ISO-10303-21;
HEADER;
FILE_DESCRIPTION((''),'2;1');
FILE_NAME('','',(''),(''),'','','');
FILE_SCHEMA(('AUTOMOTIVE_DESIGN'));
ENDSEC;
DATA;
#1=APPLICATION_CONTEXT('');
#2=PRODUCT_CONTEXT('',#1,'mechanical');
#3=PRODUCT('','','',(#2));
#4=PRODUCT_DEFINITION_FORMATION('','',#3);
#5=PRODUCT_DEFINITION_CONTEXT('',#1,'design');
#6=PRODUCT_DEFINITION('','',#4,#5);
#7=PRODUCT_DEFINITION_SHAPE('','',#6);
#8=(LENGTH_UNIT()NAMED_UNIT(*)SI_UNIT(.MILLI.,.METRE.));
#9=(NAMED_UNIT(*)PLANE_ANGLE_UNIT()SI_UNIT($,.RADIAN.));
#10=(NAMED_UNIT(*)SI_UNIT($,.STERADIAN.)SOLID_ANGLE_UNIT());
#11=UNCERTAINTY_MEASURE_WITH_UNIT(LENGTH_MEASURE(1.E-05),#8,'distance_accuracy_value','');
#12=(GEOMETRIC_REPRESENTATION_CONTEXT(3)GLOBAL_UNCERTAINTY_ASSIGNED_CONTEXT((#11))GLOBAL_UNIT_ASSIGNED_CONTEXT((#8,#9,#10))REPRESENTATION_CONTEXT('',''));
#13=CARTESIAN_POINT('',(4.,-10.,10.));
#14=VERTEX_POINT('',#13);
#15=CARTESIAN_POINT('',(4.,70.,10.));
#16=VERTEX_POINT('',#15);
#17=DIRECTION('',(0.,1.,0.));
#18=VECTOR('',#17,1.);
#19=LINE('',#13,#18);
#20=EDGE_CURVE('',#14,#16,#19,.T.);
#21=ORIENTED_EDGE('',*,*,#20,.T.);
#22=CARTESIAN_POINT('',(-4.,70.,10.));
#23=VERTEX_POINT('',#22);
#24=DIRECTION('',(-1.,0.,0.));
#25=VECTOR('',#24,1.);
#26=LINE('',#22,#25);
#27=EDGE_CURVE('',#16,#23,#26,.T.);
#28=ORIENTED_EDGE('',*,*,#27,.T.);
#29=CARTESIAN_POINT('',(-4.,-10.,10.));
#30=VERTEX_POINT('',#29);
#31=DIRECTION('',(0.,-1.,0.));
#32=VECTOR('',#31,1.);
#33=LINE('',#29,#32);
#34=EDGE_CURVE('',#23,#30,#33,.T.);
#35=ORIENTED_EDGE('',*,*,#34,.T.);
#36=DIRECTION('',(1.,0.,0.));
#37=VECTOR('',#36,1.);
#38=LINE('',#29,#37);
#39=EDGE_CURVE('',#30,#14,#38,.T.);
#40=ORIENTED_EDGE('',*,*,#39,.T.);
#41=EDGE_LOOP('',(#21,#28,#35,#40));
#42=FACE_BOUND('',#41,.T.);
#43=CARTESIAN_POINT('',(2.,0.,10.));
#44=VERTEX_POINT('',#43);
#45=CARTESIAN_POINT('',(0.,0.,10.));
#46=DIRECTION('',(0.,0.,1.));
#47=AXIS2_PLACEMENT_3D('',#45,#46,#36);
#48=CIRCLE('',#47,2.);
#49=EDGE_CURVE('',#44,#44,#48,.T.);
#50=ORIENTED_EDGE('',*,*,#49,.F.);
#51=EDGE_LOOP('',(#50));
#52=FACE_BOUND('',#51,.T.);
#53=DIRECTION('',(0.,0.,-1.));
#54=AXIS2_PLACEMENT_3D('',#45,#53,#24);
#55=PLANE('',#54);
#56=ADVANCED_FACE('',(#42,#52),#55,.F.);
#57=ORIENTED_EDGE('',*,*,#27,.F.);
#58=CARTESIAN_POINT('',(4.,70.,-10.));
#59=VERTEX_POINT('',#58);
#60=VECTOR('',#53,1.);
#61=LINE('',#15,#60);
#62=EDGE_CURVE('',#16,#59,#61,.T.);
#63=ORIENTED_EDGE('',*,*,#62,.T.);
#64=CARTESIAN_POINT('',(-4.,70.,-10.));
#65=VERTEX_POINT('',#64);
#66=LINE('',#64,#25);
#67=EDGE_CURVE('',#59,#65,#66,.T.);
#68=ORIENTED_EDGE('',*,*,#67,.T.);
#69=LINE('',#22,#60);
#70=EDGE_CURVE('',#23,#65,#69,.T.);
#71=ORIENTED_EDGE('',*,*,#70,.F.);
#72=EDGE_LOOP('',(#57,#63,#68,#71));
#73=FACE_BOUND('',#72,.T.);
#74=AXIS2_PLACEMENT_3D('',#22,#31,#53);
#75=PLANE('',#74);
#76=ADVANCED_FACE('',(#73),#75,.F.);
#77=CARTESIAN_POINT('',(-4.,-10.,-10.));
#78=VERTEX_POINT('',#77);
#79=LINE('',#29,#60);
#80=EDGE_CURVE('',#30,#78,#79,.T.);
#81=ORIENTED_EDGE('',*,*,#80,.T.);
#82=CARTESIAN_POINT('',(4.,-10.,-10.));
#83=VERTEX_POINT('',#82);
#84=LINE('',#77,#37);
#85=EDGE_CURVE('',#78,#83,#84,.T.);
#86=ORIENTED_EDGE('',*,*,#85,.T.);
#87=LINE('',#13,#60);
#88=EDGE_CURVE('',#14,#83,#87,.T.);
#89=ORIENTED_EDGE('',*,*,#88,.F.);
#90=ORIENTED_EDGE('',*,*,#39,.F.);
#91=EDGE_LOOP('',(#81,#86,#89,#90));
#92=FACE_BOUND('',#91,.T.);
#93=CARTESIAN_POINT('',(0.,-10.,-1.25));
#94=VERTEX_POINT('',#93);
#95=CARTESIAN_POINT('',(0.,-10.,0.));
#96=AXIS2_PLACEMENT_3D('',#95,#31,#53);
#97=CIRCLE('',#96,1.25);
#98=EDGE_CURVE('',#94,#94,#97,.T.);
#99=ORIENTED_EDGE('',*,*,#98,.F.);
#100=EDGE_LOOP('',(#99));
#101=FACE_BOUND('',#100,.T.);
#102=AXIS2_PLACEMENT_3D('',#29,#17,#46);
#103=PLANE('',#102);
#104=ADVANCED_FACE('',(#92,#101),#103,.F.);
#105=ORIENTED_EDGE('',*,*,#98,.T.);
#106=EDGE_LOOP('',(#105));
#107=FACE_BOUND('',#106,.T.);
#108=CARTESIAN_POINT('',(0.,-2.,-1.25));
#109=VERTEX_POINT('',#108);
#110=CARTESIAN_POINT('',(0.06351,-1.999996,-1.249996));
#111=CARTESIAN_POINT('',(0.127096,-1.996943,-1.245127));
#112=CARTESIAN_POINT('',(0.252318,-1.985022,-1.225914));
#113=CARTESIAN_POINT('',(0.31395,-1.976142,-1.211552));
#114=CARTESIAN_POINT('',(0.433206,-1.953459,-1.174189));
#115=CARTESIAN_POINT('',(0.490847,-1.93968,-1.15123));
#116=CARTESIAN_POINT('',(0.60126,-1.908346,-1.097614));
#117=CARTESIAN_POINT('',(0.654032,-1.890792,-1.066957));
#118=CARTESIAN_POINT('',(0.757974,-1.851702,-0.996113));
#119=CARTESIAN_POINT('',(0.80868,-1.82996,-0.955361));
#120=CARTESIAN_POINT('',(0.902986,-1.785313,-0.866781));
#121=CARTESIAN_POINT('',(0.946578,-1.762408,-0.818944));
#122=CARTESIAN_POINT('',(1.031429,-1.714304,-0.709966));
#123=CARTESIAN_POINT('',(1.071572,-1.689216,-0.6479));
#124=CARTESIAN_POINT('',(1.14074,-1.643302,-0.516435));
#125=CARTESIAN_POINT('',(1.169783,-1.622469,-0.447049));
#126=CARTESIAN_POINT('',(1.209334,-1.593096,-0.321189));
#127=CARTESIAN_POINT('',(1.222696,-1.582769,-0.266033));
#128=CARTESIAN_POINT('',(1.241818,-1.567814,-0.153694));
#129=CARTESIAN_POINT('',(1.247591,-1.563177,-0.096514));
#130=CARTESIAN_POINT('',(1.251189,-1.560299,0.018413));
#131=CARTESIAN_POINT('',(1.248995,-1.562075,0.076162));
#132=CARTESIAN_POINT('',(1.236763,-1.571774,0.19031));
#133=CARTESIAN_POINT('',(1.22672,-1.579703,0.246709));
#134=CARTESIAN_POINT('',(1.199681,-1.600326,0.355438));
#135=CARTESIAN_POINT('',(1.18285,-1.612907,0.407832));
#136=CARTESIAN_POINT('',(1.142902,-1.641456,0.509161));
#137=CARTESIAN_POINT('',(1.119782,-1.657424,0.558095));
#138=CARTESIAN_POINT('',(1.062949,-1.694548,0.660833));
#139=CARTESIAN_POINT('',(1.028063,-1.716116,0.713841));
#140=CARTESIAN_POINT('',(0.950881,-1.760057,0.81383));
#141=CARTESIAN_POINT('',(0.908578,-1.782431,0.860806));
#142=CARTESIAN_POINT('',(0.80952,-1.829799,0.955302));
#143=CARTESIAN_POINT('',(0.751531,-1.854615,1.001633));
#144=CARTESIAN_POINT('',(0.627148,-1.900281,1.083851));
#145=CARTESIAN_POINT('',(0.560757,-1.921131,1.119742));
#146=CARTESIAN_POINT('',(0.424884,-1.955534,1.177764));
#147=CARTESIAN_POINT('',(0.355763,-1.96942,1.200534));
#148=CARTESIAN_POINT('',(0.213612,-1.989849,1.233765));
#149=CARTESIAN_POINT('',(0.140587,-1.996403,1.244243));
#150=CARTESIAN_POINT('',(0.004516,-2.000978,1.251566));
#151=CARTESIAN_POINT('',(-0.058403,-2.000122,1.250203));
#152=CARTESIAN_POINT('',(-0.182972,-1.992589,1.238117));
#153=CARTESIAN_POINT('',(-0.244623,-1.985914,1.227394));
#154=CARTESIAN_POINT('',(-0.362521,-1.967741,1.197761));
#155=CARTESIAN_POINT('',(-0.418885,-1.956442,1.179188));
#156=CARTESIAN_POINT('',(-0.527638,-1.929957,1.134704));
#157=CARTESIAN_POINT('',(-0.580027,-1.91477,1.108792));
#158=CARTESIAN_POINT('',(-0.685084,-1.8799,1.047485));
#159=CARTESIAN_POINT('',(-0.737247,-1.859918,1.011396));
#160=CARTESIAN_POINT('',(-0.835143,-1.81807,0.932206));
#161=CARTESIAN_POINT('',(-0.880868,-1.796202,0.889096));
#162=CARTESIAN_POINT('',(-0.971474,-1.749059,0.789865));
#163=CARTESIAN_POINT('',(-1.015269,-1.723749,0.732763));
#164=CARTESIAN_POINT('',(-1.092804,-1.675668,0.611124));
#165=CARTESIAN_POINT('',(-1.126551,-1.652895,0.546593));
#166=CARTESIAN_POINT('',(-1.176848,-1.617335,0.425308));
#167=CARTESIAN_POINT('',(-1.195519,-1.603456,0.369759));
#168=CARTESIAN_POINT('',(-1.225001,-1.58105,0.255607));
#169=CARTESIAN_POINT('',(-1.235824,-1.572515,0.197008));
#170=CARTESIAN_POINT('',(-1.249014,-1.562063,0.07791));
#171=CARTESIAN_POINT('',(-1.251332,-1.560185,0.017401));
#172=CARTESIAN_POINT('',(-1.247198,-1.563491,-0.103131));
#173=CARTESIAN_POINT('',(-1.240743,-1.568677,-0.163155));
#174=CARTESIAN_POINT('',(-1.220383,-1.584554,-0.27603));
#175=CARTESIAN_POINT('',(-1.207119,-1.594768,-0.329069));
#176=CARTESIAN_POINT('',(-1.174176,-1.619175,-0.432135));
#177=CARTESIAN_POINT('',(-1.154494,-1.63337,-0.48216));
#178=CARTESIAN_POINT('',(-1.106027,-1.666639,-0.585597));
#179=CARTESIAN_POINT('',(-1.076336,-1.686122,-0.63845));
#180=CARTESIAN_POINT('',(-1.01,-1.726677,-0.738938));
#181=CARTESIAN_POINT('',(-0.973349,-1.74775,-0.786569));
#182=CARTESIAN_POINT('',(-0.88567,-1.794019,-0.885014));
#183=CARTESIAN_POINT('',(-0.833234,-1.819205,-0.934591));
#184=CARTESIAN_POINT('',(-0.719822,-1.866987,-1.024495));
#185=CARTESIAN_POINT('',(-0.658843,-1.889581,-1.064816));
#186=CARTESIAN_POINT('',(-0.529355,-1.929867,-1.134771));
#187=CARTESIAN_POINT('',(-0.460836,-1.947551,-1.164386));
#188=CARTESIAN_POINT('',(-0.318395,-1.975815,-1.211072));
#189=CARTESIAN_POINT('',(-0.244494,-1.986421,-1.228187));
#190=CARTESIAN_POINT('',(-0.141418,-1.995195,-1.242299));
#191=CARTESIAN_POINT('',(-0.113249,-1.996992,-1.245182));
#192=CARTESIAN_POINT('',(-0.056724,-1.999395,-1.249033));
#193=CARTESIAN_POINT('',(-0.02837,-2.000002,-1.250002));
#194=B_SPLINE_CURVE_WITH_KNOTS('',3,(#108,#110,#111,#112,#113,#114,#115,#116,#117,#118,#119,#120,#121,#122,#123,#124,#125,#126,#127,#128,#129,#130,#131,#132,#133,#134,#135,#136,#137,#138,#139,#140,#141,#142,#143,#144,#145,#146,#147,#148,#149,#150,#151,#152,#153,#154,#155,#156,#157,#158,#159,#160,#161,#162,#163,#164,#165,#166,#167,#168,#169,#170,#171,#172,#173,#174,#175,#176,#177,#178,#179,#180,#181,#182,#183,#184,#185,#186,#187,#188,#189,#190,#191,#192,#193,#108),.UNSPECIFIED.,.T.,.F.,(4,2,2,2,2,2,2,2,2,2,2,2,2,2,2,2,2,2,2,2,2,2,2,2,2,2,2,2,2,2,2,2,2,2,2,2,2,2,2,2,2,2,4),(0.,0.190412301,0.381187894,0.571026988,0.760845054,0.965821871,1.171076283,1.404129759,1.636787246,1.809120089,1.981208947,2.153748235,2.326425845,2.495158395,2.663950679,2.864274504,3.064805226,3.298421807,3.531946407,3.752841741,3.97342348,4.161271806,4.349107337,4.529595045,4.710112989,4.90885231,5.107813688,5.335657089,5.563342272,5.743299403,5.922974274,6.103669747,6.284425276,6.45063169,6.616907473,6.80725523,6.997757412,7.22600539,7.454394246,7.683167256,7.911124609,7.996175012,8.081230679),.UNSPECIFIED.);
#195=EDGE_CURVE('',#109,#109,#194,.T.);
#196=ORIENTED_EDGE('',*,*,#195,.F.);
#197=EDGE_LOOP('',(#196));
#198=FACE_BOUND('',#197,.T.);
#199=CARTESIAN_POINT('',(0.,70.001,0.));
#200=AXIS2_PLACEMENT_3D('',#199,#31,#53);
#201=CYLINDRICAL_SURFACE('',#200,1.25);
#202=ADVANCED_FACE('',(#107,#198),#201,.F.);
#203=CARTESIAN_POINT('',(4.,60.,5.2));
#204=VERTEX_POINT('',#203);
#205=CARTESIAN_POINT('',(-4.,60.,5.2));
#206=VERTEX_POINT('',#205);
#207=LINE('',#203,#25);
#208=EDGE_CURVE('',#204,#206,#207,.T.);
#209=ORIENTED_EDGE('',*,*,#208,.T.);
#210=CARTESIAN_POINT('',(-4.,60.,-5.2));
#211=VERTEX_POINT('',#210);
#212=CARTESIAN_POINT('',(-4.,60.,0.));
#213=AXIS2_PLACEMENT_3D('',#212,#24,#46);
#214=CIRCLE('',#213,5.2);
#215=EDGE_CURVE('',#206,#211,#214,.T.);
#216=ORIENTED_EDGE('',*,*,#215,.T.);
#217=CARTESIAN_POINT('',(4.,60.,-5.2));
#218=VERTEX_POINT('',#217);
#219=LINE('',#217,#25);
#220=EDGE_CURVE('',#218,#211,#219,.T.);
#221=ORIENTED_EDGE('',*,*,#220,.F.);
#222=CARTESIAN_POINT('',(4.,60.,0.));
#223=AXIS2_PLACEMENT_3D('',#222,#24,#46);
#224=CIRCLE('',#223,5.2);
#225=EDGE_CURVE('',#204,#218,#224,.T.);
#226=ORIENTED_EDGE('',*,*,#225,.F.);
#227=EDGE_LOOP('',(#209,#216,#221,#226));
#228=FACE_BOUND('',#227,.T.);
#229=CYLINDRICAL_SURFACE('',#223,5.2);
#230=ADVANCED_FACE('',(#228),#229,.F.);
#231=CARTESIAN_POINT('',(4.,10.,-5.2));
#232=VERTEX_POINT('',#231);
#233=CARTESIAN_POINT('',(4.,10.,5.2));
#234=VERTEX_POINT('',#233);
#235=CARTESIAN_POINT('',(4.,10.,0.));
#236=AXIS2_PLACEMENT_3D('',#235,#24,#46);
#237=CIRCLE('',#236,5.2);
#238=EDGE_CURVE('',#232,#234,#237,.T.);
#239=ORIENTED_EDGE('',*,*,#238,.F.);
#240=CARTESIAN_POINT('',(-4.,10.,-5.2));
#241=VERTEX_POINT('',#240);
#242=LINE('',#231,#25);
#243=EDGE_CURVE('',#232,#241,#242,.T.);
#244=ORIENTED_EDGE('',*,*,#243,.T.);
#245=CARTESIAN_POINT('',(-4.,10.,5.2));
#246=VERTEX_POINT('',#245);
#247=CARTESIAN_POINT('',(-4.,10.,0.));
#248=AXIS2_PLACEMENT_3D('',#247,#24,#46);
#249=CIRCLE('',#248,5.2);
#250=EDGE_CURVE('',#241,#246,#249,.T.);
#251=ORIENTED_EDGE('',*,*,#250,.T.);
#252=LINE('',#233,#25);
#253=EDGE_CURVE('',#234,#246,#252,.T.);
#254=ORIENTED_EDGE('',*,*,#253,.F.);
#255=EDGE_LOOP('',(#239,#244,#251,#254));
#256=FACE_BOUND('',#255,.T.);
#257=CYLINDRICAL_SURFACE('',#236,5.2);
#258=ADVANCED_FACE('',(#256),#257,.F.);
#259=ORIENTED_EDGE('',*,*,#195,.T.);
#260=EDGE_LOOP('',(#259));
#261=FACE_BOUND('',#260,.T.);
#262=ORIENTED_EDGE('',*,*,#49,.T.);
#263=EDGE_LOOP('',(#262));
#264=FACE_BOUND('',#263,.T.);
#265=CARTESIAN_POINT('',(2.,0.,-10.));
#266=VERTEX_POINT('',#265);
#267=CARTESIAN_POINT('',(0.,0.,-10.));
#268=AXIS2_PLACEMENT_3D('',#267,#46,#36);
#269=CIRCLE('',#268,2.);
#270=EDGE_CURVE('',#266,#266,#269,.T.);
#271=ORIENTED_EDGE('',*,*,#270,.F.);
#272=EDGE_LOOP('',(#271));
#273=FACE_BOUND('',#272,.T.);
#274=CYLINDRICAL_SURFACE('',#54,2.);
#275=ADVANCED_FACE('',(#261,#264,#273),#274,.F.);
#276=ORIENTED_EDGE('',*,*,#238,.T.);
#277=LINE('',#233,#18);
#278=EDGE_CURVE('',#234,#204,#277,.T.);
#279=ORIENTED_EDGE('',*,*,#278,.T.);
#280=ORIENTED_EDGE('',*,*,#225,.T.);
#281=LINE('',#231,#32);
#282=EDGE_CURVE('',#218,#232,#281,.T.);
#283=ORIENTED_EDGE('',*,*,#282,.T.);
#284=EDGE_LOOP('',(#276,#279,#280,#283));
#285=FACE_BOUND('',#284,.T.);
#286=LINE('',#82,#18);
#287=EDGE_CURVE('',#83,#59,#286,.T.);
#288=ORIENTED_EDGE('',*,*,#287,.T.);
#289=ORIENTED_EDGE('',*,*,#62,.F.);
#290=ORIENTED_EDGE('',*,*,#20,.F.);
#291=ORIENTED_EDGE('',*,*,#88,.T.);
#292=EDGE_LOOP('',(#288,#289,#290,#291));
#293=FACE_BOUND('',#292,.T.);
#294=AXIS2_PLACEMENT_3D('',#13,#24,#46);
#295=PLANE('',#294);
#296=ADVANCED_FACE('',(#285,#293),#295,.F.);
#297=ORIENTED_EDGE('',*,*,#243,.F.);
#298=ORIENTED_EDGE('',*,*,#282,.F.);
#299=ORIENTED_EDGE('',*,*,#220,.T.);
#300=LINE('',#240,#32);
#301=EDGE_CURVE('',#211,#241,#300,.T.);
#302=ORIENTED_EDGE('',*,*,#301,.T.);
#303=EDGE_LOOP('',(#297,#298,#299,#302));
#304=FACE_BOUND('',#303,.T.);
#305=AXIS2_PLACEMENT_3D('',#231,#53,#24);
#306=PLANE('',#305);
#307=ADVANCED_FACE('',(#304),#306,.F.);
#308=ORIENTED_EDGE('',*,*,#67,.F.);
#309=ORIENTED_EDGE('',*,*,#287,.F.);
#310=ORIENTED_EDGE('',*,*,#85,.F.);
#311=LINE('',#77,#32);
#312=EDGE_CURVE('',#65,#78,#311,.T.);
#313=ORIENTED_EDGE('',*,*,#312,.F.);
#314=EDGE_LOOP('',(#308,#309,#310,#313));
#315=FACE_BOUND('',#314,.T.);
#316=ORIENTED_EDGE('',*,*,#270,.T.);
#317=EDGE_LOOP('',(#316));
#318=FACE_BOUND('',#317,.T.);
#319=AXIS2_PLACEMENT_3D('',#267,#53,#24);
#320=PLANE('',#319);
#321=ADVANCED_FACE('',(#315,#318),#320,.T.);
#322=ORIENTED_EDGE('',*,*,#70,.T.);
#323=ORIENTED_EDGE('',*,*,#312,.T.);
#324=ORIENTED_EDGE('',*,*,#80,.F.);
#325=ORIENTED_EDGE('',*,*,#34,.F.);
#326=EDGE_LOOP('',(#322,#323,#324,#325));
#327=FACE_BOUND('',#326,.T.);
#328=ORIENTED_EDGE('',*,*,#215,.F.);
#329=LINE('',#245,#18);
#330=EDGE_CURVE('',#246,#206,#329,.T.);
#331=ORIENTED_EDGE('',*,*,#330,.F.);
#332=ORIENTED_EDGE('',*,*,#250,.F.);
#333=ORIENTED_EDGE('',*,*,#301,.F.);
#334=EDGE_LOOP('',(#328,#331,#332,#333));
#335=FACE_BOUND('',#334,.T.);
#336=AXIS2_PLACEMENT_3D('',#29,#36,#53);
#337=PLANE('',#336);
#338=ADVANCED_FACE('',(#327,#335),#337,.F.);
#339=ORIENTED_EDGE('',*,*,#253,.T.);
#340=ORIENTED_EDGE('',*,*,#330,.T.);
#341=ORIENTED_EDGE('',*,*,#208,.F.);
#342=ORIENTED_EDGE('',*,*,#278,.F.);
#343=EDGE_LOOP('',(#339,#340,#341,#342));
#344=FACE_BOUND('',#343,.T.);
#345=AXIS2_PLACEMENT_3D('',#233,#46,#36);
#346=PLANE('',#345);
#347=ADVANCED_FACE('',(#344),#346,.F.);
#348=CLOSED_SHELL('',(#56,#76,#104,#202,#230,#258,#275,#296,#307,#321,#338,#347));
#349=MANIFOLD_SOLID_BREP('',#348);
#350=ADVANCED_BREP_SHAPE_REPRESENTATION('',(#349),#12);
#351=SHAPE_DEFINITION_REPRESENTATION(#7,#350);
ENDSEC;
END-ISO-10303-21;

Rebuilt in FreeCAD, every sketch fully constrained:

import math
import FreeCAD as App
import Part
import Sketcher

V = App.Vector

doc = App.newDocument("Part")
body = doc.addObject("PartDesign::Body", "Body")

# Sketch on XY plane
sketch1 = doc.addObject("Sketcher::SketchObject", "Sketch")
body.addObject(sketch1)
sketch1.AttachmentSupport = (doc.XY_Plane, [""])
sketch1.MapMode = "FlatFace"
sketch1.addGeometry(Part.LineSegment(V(-4, 70, 0), V(-4, -10, 0)), False)
sketch1.addGeometry(Part.LineSegment(V(-4, -10, 0), V(4, -10, 0)), False)
sketch1.addGeometry(Part.LineSegment(V(4, -10, 0), V(4, 70, 0)), False)
sketch1.addGeometry(Part.LineSegment(V(4, 70, 0), V(-4, 70, 0)), False)
sketch1.addGeometry(Part.Circle(V(0, 0, 0), V(0, 0, 1), 2), False)
sketch1.addConstraint(Sketcher.Constraint("Coincident", 0, 2, 1, 1))
sketch1.addConstraint(Sketcher.Constraint("Coincident", 1, 2, 2, 1))
sketch1.addConstraint(Sketcher.Constraint("Coincident", 2, 2, 3, 1))
sketch1.addConstraint(Sketcher.Constraint("Coincident", 3, 2, 0, 1))
sketch1.addConstraint(Sketcher.Constraint("Vertical", 0))
sketch1.addConstraint(Sketcher.Constraint("Horizontal", 1))
sketch1.addConstraint(Sketcher.Constraint("Vertical", 2))
sketch1.addConstraint(Sketcher.Constraint("Horizontal", 3))
sketch1.addConstraint(Sketcher.Constraint("Coincident", 4, 3, -1, 1))
sketch1.addConstraint(Sketcher.Constraint("Diameter", 4, 4.0))
sketch1.addConstraint(Sketcher.Constraint("DistanceX", 1, 1, 1, 2, 8.0))
sketch1.addConstraint(Sketcher.Constraint("DistanceY", 0, 2, 0, 1, 80.0))
sketch1.addConstraint(Sketcher.Constraint("DistanceX", 0, 2, -1, 1, 4.0))
sketch1.addConstraint(Sketcher.Constraint("DistanceY", 0, 2, -1, 1, 10.0))
pad1 = doc.addObject("PartDesign::Pad", "Pad")
body.addObject(pad1)
pad1.Profile = sketch1
pad1.Length = 20
pad1.Midplane = True

# Sketch on XZ plane
sketch2 = doc.addObject("Sketcher::SketchObject", "Sketch001")
body.addObject(sketch2)
sketch2.AttachmentSupport = (doc.XZ_Plane, [""])
sketch2.MapMode = "FlatFace"
sketch2.AttachmentOffset = App.Placement(V(0, 0, 10), App.Rotation())
sketch2.addGeometry(Part.Circle(V(0, 0, 0), V(0, 0, 1), 1.2), False)
sketch2.addConstraint(Sketcher.Constraint("Coincident", 0, 3, -1, 1))
sketch2.addConstraint(Sketcher.Constraint("Diameter", 0, 2.5))
pocket1 = doc.addObject("PartDesign::Pocket", "Pocket")
body.addObject(pocket1)
pocket1.Profile = sketch2
pocket1.Length = 8.43875

# Sketch on YZ plane
sketch3 = doc.addObject("Sketcher::SketchObject", "Sketch002")
body.addObject(sketch3)
sketch3.AttachmentSupport = (doc.YZ_Plane, [""])
sketch3.MapMode = "FlatFace"
sketch3.AttachmentOffset = App.Placement(V(0, 0, -4), App.Rotation())
sketch3.addGeometry(Part.LineSegment(V(60, -5, 0), V(10, -5, 0)), False)
sketch3.addGeometry(Part.ArcOfCircle(Part.Circle(V(10, 0, 0), V(0, 0, 1), 5), math.radians(90), math.radians(270)), False)
sketch3.addGeometry(Part.LineSegment(V(10, 5, 0), V(60, 5, 0)), False)
sketch3.addGeometry(Part.ArcOfCircle(Part.Circle(V(60, 0, 0), V(0, 0, 1), 5), math.radians(-90), math.radians(90)), False)
sketch3.addConstraint(Sketcher.Constraint("Tangent", 0, 2, 1, 2))
sketch3.addConstraint(Sketcher.Constraint("Tangent", 1, 1, 2, 1))
sketch3.addConstraint(Sketcher.Constraint("Tangent", 2, 2, 3, 2))
sketch3.addConstraint(Sketcher.Constraint("Tangent", 3, 1, 0, 1))
sketch3.addConstraint(Sketcher.Constraint("Horizontal", 0))
sketch3.addConstraint(Sketcher.Constraint("Horizontal", 2))
sketch3.addConstraint(Sketcher.Constraint("PointOnObject", 1, 3, -1))
sketch3.addConstraint(Sketcher.Constraint("Radius", 1, 5.2))
sketch3.addConstraint(Sketcher.Constraint("DistanceX", 0, 2, 0, 1, 50.0))
sketch3.addConstraint(Sketcher.Constraint("DistanceX", -1, 1, 1, 3, 10.0))
pocket2 = doc.addObject("PartDesign::Pocket", "Pocket001")
body.addObject(pocket2)
pocket2.Profile = sketch3
pocket2.Type = "ThroughAll"
pocket2.Reversed = True

doc.recompute()
